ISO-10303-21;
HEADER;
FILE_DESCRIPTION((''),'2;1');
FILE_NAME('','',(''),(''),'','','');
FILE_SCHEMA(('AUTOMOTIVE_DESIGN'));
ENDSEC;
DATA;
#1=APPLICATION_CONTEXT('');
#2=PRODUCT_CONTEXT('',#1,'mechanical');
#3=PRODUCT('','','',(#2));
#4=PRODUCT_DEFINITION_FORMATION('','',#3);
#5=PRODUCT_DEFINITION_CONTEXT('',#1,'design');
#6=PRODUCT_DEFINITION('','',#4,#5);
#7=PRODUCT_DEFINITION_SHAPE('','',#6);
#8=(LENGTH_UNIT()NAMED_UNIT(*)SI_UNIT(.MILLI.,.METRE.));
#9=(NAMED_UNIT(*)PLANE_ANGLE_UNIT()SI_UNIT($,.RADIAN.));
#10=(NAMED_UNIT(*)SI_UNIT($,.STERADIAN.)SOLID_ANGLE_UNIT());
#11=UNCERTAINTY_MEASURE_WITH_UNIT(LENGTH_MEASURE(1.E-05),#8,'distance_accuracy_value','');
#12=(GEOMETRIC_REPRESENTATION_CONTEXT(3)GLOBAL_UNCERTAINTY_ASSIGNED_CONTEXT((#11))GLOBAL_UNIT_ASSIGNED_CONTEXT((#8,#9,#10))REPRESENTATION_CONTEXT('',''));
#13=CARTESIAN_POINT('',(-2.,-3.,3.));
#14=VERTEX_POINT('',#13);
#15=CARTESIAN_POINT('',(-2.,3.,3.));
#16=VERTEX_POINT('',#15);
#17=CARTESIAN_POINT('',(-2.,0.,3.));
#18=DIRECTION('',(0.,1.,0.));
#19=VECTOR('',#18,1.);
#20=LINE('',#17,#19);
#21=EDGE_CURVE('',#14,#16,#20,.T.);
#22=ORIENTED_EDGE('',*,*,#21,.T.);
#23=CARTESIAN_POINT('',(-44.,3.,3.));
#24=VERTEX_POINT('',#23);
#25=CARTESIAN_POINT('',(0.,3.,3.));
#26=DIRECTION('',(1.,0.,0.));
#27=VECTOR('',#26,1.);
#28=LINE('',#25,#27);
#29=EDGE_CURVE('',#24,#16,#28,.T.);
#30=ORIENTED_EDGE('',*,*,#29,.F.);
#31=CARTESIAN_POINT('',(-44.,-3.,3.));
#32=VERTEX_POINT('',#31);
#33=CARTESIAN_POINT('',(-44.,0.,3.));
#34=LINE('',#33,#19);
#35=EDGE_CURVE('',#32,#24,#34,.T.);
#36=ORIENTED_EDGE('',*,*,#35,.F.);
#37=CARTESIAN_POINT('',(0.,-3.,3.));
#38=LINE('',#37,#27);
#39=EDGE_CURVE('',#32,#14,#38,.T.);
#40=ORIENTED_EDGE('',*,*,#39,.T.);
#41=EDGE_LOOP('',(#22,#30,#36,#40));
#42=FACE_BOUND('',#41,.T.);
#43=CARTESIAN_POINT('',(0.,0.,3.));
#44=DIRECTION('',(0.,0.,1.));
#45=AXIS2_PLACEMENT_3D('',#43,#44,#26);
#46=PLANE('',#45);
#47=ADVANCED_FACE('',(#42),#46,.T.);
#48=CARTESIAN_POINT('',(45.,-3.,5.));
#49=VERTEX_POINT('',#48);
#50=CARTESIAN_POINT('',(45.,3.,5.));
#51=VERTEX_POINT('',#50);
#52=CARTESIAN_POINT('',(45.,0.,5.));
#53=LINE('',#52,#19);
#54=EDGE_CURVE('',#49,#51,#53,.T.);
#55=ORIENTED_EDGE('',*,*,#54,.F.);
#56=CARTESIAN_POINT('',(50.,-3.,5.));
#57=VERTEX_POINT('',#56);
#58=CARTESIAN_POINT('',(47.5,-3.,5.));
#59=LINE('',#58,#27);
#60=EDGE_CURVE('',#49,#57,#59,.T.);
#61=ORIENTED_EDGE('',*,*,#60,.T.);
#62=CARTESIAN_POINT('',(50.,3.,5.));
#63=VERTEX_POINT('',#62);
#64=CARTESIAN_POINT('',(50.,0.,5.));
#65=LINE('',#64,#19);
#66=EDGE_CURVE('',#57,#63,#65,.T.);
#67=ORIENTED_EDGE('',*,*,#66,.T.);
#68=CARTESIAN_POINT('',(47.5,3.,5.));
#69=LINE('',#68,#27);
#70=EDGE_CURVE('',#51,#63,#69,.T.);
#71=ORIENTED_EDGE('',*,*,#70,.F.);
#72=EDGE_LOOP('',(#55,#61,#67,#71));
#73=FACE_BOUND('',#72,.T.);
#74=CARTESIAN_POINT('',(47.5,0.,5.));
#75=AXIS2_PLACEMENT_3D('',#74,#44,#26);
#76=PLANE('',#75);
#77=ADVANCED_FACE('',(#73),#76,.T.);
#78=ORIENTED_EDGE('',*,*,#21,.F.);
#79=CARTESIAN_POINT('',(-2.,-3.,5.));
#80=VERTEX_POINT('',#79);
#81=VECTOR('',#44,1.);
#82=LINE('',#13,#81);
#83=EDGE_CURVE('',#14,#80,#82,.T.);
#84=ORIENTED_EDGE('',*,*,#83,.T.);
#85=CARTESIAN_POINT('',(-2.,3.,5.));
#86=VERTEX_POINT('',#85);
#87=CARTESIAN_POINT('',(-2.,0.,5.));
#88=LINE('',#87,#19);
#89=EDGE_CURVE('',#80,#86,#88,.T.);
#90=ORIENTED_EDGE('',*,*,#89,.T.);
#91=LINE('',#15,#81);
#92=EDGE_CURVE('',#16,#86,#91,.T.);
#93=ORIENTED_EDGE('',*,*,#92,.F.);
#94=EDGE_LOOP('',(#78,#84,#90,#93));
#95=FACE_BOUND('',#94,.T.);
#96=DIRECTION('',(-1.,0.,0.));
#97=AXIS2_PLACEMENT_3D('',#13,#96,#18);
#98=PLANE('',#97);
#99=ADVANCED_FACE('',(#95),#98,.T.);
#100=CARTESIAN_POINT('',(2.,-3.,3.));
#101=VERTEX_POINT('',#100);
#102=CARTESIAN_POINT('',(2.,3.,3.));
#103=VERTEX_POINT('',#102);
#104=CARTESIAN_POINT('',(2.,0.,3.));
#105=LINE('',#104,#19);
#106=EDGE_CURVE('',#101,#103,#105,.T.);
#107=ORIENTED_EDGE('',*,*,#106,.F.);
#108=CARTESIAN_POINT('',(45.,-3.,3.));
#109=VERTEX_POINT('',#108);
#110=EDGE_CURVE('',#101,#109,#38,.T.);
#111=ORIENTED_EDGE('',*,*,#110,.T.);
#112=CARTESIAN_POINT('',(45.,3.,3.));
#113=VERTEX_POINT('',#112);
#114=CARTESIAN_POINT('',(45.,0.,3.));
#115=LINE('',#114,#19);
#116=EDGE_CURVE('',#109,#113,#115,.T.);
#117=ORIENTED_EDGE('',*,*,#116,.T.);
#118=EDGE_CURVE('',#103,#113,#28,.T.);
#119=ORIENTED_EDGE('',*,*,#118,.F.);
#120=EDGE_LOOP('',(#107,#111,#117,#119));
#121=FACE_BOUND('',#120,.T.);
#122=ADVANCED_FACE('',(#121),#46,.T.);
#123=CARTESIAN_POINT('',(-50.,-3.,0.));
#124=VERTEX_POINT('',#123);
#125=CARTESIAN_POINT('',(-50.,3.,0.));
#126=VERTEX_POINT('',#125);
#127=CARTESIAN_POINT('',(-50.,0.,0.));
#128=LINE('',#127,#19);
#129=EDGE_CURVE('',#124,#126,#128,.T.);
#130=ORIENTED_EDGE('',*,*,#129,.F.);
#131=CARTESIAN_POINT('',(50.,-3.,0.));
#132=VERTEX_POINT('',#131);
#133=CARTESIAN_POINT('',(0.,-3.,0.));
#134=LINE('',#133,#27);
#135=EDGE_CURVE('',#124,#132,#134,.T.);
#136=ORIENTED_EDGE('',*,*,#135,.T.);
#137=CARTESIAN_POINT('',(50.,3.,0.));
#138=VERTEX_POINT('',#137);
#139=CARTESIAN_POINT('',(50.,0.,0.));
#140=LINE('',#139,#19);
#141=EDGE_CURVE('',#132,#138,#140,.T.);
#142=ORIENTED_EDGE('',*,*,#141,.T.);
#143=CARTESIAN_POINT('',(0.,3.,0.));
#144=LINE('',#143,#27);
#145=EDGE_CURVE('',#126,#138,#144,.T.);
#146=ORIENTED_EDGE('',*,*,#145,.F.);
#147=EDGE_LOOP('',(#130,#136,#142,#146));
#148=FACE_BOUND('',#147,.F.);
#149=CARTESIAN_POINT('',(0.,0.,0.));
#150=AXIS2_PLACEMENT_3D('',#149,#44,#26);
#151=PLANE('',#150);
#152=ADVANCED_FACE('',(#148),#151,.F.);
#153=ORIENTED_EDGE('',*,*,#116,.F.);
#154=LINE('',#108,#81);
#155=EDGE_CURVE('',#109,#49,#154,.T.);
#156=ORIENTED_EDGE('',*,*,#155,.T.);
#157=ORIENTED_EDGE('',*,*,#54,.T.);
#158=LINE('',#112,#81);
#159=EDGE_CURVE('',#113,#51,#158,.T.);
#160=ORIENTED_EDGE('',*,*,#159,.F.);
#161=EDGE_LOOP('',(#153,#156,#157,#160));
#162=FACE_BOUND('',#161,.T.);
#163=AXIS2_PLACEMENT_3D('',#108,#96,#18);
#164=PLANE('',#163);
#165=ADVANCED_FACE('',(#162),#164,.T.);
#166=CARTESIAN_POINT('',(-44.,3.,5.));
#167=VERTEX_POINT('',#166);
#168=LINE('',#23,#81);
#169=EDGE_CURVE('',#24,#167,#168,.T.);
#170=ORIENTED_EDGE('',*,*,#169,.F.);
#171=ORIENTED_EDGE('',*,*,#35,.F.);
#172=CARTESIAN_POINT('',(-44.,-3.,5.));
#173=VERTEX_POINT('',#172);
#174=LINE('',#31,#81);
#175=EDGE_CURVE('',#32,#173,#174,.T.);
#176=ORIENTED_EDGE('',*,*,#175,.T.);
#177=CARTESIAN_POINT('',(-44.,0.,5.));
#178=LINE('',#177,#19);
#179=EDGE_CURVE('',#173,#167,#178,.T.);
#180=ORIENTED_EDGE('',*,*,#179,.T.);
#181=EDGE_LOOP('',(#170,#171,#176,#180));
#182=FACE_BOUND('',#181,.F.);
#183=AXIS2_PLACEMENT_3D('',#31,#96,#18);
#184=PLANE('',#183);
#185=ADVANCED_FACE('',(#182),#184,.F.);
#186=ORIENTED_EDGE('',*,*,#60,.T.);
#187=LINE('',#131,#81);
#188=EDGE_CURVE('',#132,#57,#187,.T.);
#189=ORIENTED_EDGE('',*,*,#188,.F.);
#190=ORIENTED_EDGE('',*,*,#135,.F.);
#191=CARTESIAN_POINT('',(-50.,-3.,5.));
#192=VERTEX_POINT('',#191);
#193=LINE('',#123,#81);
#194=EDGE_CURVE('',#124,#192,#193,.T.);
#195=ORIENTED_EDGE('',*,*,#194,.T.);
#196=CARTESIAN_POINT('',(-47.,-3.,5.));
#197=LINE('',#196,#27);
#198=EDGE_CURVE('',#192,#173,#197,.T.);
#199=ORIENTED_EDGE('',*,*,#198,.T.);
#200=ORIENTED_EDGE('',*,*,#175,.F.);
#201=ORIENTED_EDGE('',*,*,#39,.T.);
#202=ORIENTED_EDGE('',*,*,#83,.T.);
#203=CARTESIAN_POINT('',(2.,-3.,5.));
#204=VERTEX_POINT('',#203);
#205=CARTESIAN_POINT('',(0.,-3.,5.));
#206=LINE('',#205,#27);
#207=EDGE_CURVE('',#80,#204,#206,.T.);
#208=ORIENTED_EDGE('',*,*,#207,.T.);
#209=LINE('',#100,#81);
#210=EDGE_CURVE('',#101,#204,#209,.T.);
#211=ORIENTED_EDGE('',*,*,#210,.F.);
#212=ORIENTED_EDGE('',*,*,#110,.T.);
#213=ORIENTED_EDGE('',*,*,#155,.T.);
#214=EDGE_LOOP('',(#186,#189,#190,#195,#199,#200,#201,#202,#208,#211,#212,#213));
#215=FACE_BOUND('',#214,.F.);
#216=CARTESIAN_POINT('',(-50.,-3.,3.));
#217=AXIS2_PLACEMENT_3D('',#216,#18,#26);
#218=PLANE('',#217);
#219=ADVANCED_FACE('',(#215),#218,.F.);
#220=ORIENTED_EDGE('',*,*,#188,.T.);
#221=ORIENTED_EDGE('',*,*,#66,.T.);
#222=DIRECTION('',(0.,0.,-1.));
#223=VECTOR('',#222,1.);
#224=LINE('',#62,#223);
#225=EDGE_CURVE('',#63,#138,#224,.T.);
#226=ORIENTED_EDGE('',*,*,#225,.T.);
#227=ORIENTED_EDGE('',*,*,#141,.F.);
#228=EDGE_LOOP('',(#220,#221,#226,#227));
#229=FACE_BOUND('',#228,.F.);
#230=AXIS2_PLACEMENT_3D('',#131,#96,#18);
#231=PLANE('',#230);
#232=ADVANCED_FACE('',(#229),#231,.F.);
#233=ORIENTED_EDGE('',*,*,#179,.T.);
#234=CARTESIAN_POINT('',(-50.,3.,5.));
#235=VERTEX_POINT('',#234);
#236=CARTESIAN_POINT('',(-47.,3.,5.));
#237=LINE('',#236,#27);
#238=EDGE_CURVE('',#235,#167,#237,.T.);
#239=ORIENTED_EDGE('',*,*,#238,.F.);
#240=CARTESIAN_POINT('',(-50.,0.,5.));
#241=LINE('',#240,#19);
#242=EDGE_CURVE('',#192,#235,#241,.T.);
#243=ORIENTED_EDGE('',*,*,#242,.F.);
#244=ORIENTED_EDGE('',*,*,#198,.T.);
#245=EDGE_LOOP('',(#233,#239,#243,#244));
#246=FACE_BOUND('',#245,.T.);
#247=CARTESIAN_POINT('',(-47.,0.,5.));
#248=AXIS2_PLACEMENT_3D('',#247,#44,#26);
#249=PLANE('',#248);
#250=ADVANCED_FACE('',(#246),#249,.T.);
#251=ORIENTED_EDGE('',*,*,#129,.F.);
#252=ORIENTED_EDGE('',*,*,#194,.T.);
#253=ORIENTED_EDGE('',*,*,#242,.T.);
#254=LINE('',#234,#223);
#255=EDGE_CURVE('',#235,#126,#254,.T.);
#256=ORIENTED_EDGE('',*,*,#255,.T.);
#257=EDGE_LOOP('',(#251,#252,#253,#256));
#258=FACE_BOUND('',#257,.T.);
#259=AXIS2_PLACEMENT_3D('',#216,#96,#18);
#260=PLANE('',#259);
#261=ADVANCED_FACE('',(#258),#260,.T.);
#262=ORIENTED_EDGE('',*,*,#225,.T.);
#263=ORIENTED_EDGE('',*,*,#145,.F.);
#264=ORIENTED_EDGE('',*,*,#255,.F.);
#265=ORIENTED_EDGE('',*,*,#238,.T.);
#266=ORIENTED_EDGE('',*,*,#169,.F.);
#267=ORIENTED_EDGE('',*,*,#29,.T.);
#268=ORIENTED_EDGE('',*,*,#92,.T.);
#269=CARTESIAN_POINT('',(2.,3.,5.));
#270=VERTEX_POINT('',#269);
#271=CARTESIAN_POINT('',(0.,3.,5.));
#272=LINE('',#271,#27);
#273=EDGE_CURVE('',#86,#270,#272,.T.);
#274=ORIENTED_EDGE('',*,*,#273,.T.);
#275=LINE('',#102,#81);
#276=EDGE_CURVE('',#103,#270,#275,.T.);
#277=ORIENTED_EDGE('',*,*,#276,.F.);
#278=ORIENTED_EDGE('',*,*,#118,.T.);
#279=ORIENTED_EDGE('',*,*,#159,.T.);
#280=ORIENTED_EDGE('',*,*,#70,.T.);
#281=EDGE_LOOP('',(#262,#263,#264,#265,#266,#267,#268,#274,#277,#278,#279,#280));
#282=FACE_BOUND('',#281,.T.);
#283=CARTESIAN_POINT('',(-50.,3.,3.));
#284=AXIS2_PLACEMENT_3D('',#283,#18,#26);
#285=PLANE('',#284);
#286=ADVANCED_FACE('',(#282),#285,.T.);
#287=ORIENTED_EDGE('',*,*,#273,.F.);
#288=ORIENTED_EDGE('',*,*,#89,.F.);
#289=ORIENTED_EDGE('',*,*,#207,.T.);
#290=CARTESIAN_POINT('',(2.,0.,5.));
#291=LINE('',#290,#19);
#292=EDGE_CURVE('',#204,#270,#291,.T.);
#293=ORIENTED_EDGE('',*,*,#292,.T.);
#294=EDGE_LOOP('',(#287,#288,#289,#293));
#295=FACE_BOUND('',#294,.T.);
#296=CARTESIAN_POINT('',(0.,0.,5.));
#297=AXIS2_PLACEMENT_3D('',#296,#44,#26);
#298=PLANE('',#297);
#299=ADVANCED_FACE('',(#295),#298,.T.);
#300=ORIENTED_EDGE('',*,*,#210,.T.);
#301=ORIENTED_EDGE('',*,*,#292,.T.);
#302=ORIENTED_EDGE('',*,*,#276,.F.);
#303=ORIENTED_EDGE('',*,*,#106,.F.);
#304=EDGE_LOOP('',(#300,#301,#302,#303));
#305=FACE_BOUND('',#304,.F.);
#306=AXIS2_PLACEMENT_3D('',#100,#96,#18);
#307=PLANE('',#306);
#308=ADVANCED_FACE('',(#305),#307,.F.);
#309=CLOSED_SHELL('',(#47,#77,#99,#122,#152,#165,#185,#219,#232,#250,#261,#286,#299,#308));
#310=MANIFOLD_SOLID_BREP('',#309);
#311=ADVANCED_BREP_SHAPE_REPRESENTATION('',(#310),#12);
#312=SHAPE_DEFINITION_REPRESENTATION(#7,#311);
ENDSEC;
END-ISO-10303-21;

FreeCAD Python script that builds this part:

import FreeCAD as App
import Part
import Sketcher
Q = App.Units.Quantity

doc = App.newDocument("Part")
body = doc.addObject("PartDesign::Body", "Body")

sketch1 = body.newObject("Sketcher::SketchObject", "Sketch")
sketch1.AttachmentSupport = (doc.getObject("XY_Plane"), [""])
sketch1.MapMode = "FlatFace"
sketch1.addGeometry([
    Part.LineSegment(App.Vector(-50, 3, 0), App.Vector(-50, -3, 0)),
    Part.LineSegment(App.Vector(-50, -3, 0), App.Vector(50, -3, 0)),
    Part.LineSegment(App.Vector(50, -3, 0), App.Vector(50, 3, 0)),
    Part.LineSegment(App.Vector(50, 3, 0), App.Vector(-50, 3, 0)),
], False)
sketch1.addConstraint([
    Sketcher.Constraint("Coincident", 0, 2, 1, 1),
    Sketcher.Constraint("Coincident", 1, 2, 2, 1),
    Sketcher.Constraint("Coincident", 2, 2, 3, 1),
    Sketcher.Constraint("Coincident", 3, 2, 0, 1),
    Sketcher.Constraint("Vertical", 0),
    Sketcher.Constraint("Horizontal", 1),
    Sketcher.Constraint("Vertical", 2),
    Sketcher.Constraint("Horizontal", 3),
    Sketcher.Constraint("Symmetric", 0, 2, 2, 2, -1, 1),
    Sketcher.Constraint("DistanceX", 1, 1, 1, 2, Q("100 mm")),
    Sketcher.Constraint("DistanceY", 0, 2, 0, 1, Q("6 mm")),
])
pad1 = body.newObject("PartDesign::Pad", "Pad")
pad1.Profile = sketch1
pad1.Length = 3

sketch2 = body.newObject("Sketcher::SketchObject", "Sketch001")
sketch2.AttachmentSupport = (doc.getObject("XY_Plane"), [""])
sketch2.MapMode = "FlatFace"
sketch2.AttachmentOffset = App.Placement(App.Vector(0, 0, 3), App.Rotation())
sketch2.addGeometry([
    Part.LineSegment(App.Vector(-50, 3, 0), App.Vector(-50, -3, 0)),
    Part.LineSegment(App.Vector(-50, -3, 0), App.Vector(-44, -3, 0)),
    Part.LineSegment(App.Vector(-44, -3, 0), App.Vector(-44, 3, 0)),
    Part.LineSegment(App.Vector(-44, 3, 0), App.Vector(-50, 3, 0)),
    Part.LineSegment(App.Vector(-2, 3, 0), App.Vector(-2, -3, 0)),
    Part.LineSegment(App.Vector(-2, -3, 0), App.Vector(2, -3, 0)),
    Part.LineSegment(App.Vector(2, -3, 0), App.Vector(2, 3, 0)),
    Part.LineSegment(App.Vector(2, 3, 0), App.Vector(-2, 3, 0)),
    Part.LineSegment(App.Vector(45, 3, 0), App.Vector(45, -3, 0)),
    Part.LineSegment(App.Vector(45, -3, 0), App.Vector(50, -3, 0)),
    Part.LineSegment(App.Vector(50, -3, 0), App.Vector(50, 3, 0)),
    Part.LineSegment(App.Vector(50, 3, 0), App.Vector(45, 3, 0)),
], False)
sketch2.addConstraint([
    Sketcher.Constraint("Coincident", 0, 2, 1, 1),
    Sketcher.Constraint("Coincident", 1, 2, 2, 1),
    Sketcher.Constraint("Coincident", 2, 2, 3, 1),
    Sketcher.Constraint("Coincident", 3, 2, 0, 1),
    Sketcher.Constraint("Coincident", 4, 2, 5, 1),
    Sketcher.Constraint("Coincident", 5, 2, 6, 1),
    Sketcher.Constraint("Coincident", 6, 2, 7, 1),
    Sketcher.Constraint("Coincident", 7, 2, 4, 1),
    Sketcher.Constraint("Coincident", 8, 2, 9, 1),
    Sketcher.Constraint("Coincident", 9, 2, 10, 1),
    Sketcher.Constraint("Coincident", 10, 2, 11, 1),
    Sketcher.Constraint("Coincident", 11, 2, 8, 1),
    Sketcher.Constraint("Vertical", 0),
    Sketcher.Constraint("Horizontal", 1),
    Sketcher.Constraint("Vertical", 2),
    Sketcher.Constraint("Horizontal", 3),
    Sketcher.Constraint("Vertical", 4),
    Sketcher.Constraint("Horizontal", 5),
    Sketcher.Constraint("Vertical", 6),
    Sketcher.Constraint("Horizontal", 7),
    Sketcher.Constraint("Vertical", 8),
    Sketcher.Constraint("Horizontal", 9),
    Sketcher.Constraint("Vertical", 10),
    Sketcher.Constraint("Horizontal", 11),
    Sketcher.Constraint("Symmetric", 4, 2, 6, 2, -1, 1),
    Sketcher.Constraint("Symmetric", 3, 2, 9, 2, -1, 1),
    Sketcher.Constraint("Horizontal", 1, 2, 4, 2),
    Sketcher.Constraint("Horizontal", 3, 2, 6, 2),
    Sketcher.Constraint("Horizontal", 7, 2, 10, 2),
    Sketcher.Constraint("Equal", 3, 0),
    Sketcher.Constraint("DistanceX", 1, 1, 1, 2, Q("6 mm")),
    Sketcher.Constraint("DistanceX", 5, 1, 5, 2, Q("4 mm")),
    Sketcher.Constraint("DistanceX", 9, 1, 9, 2, Q("5 mm")),
    Sketcher.Constraint("DistanceX", 0, 2, -1, 1, Q("50 mm")),
])
pad2 = body.newObject("PartDesign::Pad", "Pad001")
pad2.Profile = sketch2
pad2.Length = 2

doc.recompute()
